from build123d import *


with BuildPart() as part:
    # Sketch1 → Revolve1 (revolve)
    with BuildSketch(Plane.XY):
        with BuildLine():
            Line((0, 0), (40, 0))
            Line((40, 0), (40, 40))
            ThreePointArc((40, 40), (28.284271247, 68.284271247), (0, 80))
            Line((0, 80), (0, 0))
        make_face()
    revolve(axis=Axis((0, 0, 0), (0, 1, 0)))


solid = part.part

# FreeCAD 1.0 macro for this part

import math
import FreeCAD as App
import Part
import Sketcher

doc = App.newDocument("Part")
params = doc.addObject("Spreadsheet::Sheet", "Params")
for row, (alias, value) in enumerate([
    ("sketch1_radius", "40 mm"),
    ("revolution_angle", "360 deg"),
], start=1):
    params.set(f"A{row}", alias)
    params.set(f"B{row}", "=" + value)
    params.setAlias(f"B{row}", alias)

body = doc.addObject("PartDesign::Body", "Body")

# Sketch on XY plane
sketch1 = body.newObject("Sketcher::SketchObject", "Sketch")
sketch1.AttachmentSupport = (doc.getObject("XY_Plane"), [""])
sketch1.MapMode = "FlatFace"
sketch1.addGeometry(Part.LineSegment(App.Vector(0, 0, 0), App.Vector(40, 0, 0)), False)
sketch1.addGeometry(Part.LineSegment(App.Vector(40, 0, 0), App.Vector(40, 40, 0)), False)
sketch1.addGeometry(Part.ArcOfCircle(Part.Circle(App.Vector(0, 40, 0), App.Vector(0, 0, 1), 40), math.radians(0), math.radians(90)), False)
sketch1.addGeometry(Part.LineSegment(App.Vector(0, 80, 0), App.Vector(0, 0, 0)), False)
sketch1.addConstraint(Sketcher.Constraint("Coincident", 0, 2, 1, 1))
sketch1.addConstraint(Sketcher.Constraint("Tangent", 1, 2, 2, 1))
sketch1.addConstraint(Sketcher.Constraint("Coincident", 2, 2, 3, 1))
sketch1.addConstraint(Sketcher.Constraint("Coincident", 3, 2, 0, 1))
sketch1.addConstraint(Sketcher.Constraint("Horizontal", 0))
sketch1.addConstraint(Sketcher.Constraint("Vertical", 1))
sketch1.addConstraint(Sketcher.Constraint("Vertical", 3))
sketch1.addConstraint(Sketcher.Constraint("Coincident", 3, 2, -1, 1))
sketch1.addConstraint(Sketcher.Constraint("PointOnObject", 2, 3, -2))
sketch1.addConstraint(Sketcher.Constraint("Equal", 0, 1))
sketch1.addConstraint(Sketcher.Constraint("Radius", 2, 40.0))
sketch1.setExpression("Constraints[10]", "Params.sketch1_radius")
revolution = body.newObject("PartDesign::Revolution", "Revolution")
revolution.Profile = sketch1
revolution.ReferenceAxis = (sketch1, ["V_Axis"])
revolution.setExpression("Angle", "Params.revolution_angle")

doc.recompute()
